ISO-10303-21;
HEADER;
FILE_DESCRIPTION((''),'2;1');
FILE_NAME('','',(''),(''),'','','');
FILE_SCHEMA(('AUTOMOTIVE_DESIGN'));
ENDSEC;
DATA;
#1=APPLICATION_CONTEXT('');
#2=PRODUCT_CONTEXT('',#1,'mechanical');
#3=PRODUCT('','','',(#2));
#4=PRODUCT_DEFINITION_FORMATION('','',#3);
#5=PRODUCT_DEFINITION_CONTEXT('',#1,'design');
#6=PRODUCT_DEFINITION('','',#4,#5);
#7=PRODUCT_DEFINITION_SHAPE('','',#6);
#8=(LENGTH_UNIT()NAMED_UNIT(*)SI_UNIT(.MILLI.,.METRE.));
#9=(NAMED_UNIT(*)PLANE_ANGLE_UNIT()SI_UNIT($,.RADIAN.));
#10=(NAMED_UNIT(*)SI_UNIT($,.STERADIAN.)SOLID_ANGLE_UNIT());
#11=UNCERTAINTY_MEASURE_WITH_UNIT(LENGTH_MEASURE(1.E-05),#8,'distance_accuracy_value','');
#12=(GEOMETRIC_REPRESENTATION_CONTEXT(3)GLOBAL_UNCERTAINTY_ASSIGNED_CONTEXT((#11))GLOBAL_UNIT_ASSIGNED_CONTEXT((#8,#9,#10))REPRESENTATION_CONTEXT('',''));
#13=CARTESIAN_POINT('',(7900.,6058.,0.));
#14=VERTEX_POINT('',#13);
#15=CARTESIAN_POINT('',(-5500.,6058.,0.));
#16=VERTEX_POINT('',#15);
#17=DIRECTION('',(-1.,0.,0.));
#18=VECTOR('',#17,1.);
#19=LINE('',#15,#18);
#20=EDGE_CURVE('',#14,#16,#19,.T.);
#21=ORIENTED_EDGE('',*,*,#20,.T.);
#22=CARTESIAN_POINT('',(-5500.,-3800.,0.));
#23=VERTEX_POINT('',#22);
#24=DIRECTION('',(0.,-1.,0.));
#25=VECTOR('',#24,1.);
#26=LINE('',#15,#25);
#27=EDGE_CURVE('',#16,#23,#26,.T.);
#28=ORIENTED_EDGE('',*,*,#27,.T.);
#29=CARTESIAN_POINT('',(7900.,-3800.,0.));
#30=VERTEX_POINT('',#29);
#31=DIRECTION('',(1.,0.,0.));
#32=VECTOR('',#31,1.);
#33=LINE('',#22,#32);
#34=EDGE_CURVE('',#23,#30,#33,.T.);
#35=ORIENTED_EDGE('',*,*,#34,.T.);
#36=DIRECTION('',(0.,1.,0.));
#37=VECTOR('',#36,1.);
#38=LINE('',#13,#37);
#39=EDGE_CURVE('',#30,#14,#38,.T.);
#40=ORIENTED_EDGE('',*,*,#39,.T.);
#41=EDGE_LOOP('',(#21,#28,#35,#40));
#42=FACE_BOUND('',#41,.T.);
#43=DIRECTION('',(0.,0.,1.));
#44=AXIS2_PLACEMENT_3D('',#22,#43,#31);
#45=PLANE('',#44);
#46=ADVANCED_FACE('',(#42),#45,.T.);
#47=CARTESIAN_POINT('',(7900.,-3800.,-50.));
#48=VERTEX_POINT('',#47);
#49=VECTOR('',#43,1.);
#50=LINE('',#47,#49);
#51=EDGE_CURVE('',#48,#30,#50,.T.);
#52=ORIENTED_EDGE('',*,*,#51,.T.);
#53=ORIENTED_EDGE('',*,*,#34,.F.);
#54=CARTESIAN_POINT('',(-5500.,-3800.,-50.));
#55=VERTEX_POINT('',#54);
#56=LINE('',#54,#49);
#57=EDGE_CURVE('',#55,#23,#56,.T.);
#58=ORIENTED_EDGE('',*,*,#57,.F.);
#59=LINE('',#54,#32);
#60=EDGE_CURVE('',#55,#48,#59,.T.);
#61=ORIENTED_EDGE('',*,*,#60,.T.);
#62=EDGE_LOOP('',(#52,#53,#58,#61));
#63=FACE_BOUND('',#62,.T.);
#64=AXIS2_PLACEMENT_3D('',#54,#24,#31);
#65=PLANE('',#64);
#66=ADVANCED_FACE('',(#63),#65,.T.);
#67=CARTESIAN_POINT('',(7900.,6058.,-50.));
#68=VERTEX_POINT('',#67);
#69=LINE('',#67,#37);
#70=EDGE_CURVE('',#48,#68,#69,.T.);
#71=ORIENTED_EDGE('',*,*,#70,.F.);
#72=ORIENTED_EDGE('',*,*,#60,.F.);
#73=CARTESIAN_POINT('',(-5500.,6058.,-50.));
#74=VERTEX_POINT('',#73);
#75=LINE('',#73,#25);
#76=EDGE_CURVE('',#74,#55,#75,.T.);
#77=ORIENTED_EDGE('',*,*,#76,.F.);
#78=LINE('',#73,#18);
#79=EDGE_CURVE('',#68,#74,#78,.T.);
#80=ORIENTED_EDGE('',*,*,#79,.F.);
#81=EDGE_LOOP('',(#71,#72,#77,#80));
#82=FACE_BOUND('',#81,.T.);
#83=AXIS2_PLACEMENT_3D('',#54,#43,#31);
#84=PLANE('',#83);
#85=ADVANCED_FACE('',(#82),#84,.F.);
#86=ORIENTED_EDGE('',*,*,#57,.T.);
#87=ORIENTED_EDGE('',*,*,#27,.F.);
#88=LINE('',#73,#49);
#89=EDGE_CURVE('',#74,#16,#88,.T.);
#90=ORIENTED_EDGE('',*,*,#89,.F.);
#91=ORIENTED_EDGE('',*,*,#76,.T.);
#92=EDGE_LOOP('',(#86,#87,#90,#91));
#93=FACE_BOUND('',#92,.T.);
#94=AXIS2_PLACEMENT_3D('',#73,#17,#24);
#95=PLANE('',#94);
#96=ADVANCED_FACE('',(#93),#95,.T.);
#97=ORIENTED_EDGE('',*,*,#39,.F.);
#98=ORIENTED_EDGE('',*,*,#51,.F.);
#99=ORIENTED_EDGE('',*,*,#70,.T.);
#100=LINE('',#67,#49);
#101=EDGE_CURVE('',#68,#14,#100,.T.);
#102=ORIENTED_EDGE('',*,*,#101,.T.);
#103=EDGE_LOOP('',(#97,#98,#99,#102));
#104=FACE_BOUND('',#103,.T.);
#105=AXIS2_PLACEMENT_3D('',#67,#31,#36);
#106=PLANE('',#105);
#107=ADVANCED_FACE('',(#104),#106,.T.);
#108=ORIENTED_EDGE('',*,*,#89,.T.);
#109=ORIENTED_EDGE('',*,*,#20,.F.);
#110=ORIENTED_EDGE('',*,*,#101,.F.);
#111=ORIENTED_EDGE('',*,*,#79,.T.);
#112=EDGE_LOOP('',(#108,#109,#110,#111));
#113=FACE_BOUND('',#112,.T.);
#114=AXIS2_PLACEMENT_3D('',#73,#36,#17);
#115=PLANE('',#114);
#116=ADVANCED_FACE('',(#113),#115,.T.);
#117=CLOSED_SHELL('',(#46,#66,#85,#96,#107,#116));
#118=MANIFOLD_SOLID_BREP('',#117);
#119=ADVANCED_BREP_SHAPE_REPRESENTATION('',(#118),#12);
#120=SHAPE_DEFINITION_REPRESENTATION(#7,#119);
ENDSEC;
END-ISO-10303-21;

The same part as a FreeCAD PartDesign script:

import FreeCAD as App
import Part
import Sketcher
Q = App.Units.Quantity


def add_polygon(sketch, points):
    """Adds a closed chain of lines whose ends are joined by coincident constraints."""
    first, n = sketch.GeometryCount, len(points)
    for a, b in zip(points, points[1:] + points[:1]):
        sketch.addGeometry(Part.LineSegment(App.Vector(*a, 0), App.Vector(*b, 0)), False)
    for i in range(n):
        sketch.addConstraint(Sketcher.Constraint("Coincident", first + i, 2, first + (i + 1) % n, 1))

doc = App.newDocument("Part")
body = doc.addObject("PartDesign::Body", "Body")

sketch1 = body.newObject("Sketcher::SketchObject", "Sketch")
sketch1.AttachmentSupport = (doc.getObject("XY_Plane"), [""])
sketch1.MapMode = "FlatFace"
add_polygon(sketch1, [(-5500, 6058), (-5500, -3800), (7900, -3800), (7900, 6058)])
sketch1.addConstraint(Sketcher.Constraint("Vertical", 0))
sketch1.addConstraint(Sketcher.Constraint("Horizontal", 1))
sketch1.addConstraint(Sketcher.Constraint("Vertical", 2))
sketch1.addConstraint(Sketcher.Constraint("Horizontal", 3))
sketch1.addConstraint(Sketcher.Constraint("DistanceX", 1, 1, 1, 2, Q("13400 mm")))
sketch1.addConstraint(Sketcher.Constraint("DistanceY", 0, 2, 0, 1, Q("9858 mm")))
sketch1.addConstraint(Sketcher.Constraint("DistanceX", 0, 2, -1, 1, Q("5500 mm")))
sketch1.addConstraint(Sketcher.Constraint("DistanceY", 0, 2, -1, 1, Q("3800 mm")))
pad1 = body.newObject("PartDesign::Pad", "Pad")
pad1.Profile = sketch1
pad1.Length = 50
pad1.Reversed = True

doc.recompute()
